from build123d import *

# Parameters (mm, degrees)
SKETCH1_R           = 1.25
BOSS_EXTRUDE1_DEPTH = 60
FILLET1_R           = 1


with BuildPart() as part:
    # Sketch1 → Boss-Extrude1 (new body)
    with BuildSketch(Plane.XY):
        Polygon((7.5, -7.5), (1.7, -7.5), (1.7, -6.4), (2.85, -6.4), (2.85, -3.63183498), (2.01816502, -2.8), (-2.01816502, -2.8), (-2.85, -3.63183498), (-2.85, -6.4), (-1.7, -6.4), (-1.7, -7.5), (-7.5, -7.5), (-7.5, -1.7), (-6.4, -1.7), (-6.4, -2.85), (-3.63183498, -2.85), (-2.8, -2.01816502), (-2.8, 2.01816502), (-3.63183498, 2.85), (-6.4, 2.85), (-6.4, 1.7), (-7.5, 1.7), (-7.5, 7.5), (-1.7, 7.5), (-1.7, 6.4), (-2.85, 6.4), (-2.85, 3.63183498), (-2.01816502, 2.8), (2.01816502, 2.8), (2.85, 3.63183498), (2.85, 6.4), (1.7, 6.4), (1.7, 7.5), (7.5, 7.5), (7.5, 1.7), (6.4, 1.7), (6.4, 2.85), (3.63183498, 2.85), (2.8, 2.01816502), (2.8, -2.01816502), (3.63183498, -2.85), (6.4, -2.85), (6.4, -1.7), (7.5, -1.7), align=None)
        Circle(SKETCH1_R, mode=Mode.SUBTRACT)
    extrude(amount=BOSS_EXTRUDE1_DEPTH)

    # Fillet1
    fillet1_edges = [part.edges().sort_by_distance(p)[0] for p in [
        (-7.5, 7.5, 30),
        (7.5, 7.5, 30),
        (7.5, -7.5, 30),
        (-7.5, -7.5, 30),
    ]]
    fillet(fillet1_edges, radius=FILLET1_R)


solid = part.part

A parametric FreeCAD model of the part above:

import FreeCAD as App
import Part
import Sketcher
from FreeCAD import Vector


def edges_at(feature, points):
    """Names of the edges that pass closest to the given points."""
    edges = feature.Shape.Edges
    near = lambda p: min(range(len(edges)), key=lambda i: edges[i].distToShape(Part.Vertex(*p))[0])
    return sorted({f"Edge{near(p) + 1}" for p in points})

doc = App.newDocument("Part")
params = doc.addObject("Spreadsheet::Sheet", "Params")
for row, (alias, value) in enumerate([
    ("sketch1_diameter", "2.5 mm"),
    ("sketch1_width", "5.8 mm"),
    ("sketch1_width2", "1.1 mm"),
    ("sketch1_width3", "1.15 mm"),
    ("pad1_length", "60 mm"),
    ("fillet_radius", "1 mm"),
], start=1):
    params.set(f"A{row}", alias)
    params.set(f"B{row}", "=" + value)
    params.setAlias(f"B{row}", alias)

body = doc.addObject("PartDesign::Body", "Body")

# Sketch on XY plane
sketch1 = body.newObject("Sketcher::SketchObject", "Sketch")
sketch1.AttachmentSupport = (doc.getObject("XY_Plane"), [""])
sketch1.MapMode = "FlatFace"
sketch1.addGeometry(Part.LineSegment(Vector(1.7, -7.5, 0), Vector(7.5, -7.5, 0)), False)
sketch1.addGeometry(Part.LineSegment(Vector(7.5, -7.5, 0), Vector(7.5, -1.7, 0)), False)
sketch1.addGeometry(Part.LineSegment(Vector(7.5, -1.7, 0), Vector(6.4, -1.7, 0)), False)
sketch1.addGeometry(Part.LineSegment(Vector(6.4, -1.7, 0), Vector(6.4, -2.9, 0)), False)
sketch1.addGeometry(Part.LineSegment(Vector(6.4, -2.9, 0), Vector(3.6, -2.9, 0)), False)
sketch1.addGeometry(Part.LineSegment(Vector(3.6, -2.9, 0), Vector(2.8, -2, 0)), False)
sketch1.addGeometry(Part.LineSegment(Vector(2.8, -2, 0), Vector(2.8, 2, 0)), False)
sketch1.addGeometry(Part.LineSegment(Vector(2.8, 2, 0), Vector(3.6, 2.9, 0)), False)
sketch1.addGeometry(Part.LineSegment(Vector(3.6, 2.9, 0), Vector(6.4, 2.9, 0)), False)
sketch1.addGeometry(Part.LineSegment(Vector(6.4, 2.9, 0), Vector(6.4, 1.7, 0)), False)
sketch1.addGeometry(Part.LineSegment(Vector(6.4, 1.7, 0), Vector(7.5, 1.7, 0)), False)
sketch1.addGeometry(Part.LineSegment(Vector(7.5, 1.7, 0), Vector(7.5, 7.5, 0)), False)
sketch1.addGeometry(Part.LineSegment(Vector(7.5, 7.5, 0), Vector(1.7, 7.5, 0)), False)
sketch1.addGeometry(Part.LineSegment(Vector(1.7, 7.5, 0), Vector(1.7, 6.4, 0)), False)
sketch1.addGeometry(Part.LineSegment(Vector(1.7, 6.4, 0), Vector(2.9, 6.4, 0)), False)
sketch1.addGeometry(Part.LineSegment(Vector(2.9, 6.4, 0), Vector(2.9, 3.6, 0)), False)
sketch1.addGeometry(Part.LineSegment(Vector(2.9, 3.6, 0), Vector(2, 2.8, 0)), False)
sketch1.addGeometry(Part.LineSegment(Vector(2, 2.8, 0), Vector(-2, 2.8, 0)), False)
sketch1.addGeometry(Part.LineSegment(Vector(-2, 2.8, 0), Vector(-2.9, 3.6, 0)), False)
sketch1.addGeometry(Part.LineSegment(Vector(-2.9, 3.6, 0), Vector(-2.9, 6.4, 0)), False)
sketch1.addGeometry(Part.LineSegment(Vector(-2.9, 6.4, 0), Vector(-1.7, 6.4, 0)), False)
sketch1.addGeometry(Part.LineSegment(Vector(-1.7, 6.4, 0), Vector(-1.7, 7.5, 0)), False)
sketch1.addGeometry(Part.LineSegment(Vector(-1.7, 7.5, 0), Vector(-7.5, 7.5, 0)), False)
sketch1.addGeometry(Part.LineSegment(Vector(-7.5, 7.5, 0), Vector(-7.5, 1.7, 0)), False)
sketch1.addGeometry(Part.LineSegment(Vector(-7.5, 1.7, 0), Vector(-6.4, 1.7, 0)), False)
sketch1.addGeometry(Part.LineSegment(Vector(-6.4, 1.7, 0), Vector(-6.4, 2.9, 0)), False)
sketch1.addGeometry(Part.LineSegment(Vector(-6.4, 2.9, 0), Vector(-3.6, 2.9, 0)), False)
sketch1.addGeometry(Part.LineSegment(Vector(-3.6, 2.9, 0), Vector(-2.8, 2, 0)), False)
sketch1.addGeometry(Part.LineSegment(Vector(-2.8, 2, 0), Vector(-2.8, -2, 0)), False)
sketch1.addGeometry(Part.LineSegment(Vector(-2.8, -2, 0), Vector(-3.6, -2.9, 0)), False)
sketch1.addGeometry(Part.LineSegment(Vector(-3.6, -2.9, 0), Vector(-6.4, -2.9, 0)), False)
sketch1.addGeometry(Part.LineSegment(Vector(-6.4, -2.9, 0), Vector(-6.4, -1.7, 0)), False)
sketch1.addGeometry(Part.LineSegment(Vector(-6.4, -1.7, 0), Vector(-7.5, -1.7, 0)), False)
sketch1.addGeometry(Part.LineSegment(Vector(-7.5, -1.7, 0), Vector(-7.5, -7.5, 0)), False)
sketch1.addGeometry(Part.LineSegment(Vector(-7.5, -7.5, 0), Vector(-1.7, -7.5, 0)), False)
sketch1.addGeometry(Part.LineSegment(Vector(-1.7, -7.5, 0), Vector(-1.7, -6.4, 0)), False)
sketch1.addGeometry(Part.LineSegment(Vector(-1.7, -6.4, 0), Vector(-2.9, -6.4, 0)), False)
sketch1.addGeometry(Part.LineSegment(Vector(-2.9, -6.4, 0), Vector(-2.9, -3.6, 0)), False)
sketch1.addGeometry(Part.LineSegment(Vector(-2.9, -3.6, 0), Vector(-2, -2.8, 0)), False)
sketch1.addGeometry(Part.LineSegment(Vector(-2, -2.8, 0), Vector(2, -2.8, 0)), False)
sketch1.addGeometry(Part.LineSegment(Vector(2, -2.8, 0), Vector(2.9, -3.6, 0)), False)
sketch1.addGeometry(Part.LineSegment(Vector(2.9, -3.6, 0), Vector(2.9, -6.4, 0)), False)
sketch1.addGeometry(Part.LineSegment(Vector(2.9, -6.4, 0), Vector(1.7, -6.4, 0)), False)
sketch1.addGeometry(Part.LineSegment(Vector(1.7, -6.4, 0), Vector(1.7, -7.5, 0)), False)
sketch1.addGeometry(Part.Circle(Vector(0, 0, 0), Vector(0, 0, 1), 1.2), False)
sketch1.addConstraint(Sketcher.Constraint("Coincident", 0, 2, 1, 1))
sketch1.addConstraint(Sketcher.Constraint("Coincident", 1, 2, 2, 1))
sketch1.addConstraint(Sketcher.Constraint("Coincident", 2, 2, 3, 1))
sketch1.addConstraint(Sketcher.Constraint("Coincident", 3, 2, 4, 1))
sketch1.addConstraint(Sketcher.Constraint("Coincident", 4, 2, 5, 1))
sketch1.addConstraint(Sketcher.Constraint("Coincident", 5, 2, 6, 1))
sketch1.addConstraint(Sketcher.Constraint("Coincident", 6, 2, 7, 1))
sketch1.addConstraint(Sketcher.Constraint("Coincident", 7, 2, 8, 1))
sketch1.addConstraint(Sketcher.Constraint("Coincident", 8, 2, 9, 1))
sketch1.addConstraint(Sketcher.Constraint("Coincident", 9, 2, 10, 1))
sketch1.addConstraint(Sketcher.Constraint("Coincident", 10, 2, 11, 1))
sketch1.addConstraint(Sketcher.Constraint("Coincident", 11, 2, 12, 1))
sketch1.addConstraint(Sketcher.Constraint("Coincident", 12, 2, 13, 1))
sketch1.addConstraint(Sketcher.Constraint("Coincident", 13, 2, 14, 1))
sketch1.addConstraint(Sketcher.Constraint("Coincident", 14, 2, 15, 1))
sketch1.addConstraint(Sketcher.Constraint("Coincident", 15, 2, 16, 1))
sketch1.addConstraint(Sketcher.Constraint("Coincident", 16, 2, 17, 1))
sketch1.addConstraint(Sketcher.Constraint("Coincident", 17, 2, 18, 1))
sketch1.addConstraint(Sketcher.Constraint("Coincident", 18, 2, 19, 1))
sketch1.addConstraint(Sketcher.Constraint("Coincident", 19, 2, 20, 1))
sketch1.addConstraint(Sketcher.Constraint("Coincident", 20, 2, 21, 1))
sketch1.addConstraint(Sketcher.Constraint("Coincident", 21, 2, 22, 1))
sketch1.addConstraint(Sketcher.Constraint("Coincident", 22, 2, 23, 1))
sketch1.addConstraint(Sketcher.Constraint("Coincident", 23, 2, 24, 1))
sketch1.addConstraint(Sketcher.Constraint("Coincident", 24, 2, 25, 1))
sketch1.addConstraint(Sketcher.Constraint("Coincident", 25, 2, 26, 1))
sketch1.addConstraint(Sketcher.Constraint("Coincident", 26, 2, 27, 1))
sketch1.addConstraint(Sketcher.Constraint("Coincident", 27, 2, 28, 1))
sketch1.addConstraint(Sketcher.Constraint("Coincident", 28, 2, 29, 1))
sketch1.addConstraint(Sketcher.Constraint("Coincident", 29, 2, 30, 1))
sketch1.addConstraint(Sketcher.Constraint("Coincident", 30, 2, 31, 1))
sketch1.addConstraint(Sketcher.Constraint("Coincident", 31, 2, 32, 1))
sketch1.addConstraint(Sketcher.Constraint("Coincident", 32, 2, 33, 1))
sketch1.addConstraint(Sketcher.Constraint("Coincident", 33, 2, 34, 1))
sketch1.addConstraint(Sketcher.Constraint("Coincident", 34, 2, 35, 1))
sketch1.addConstraint(Sketcher.Constraint("Coincident", 35, 2, 36, 1))
sketch1.addConstraint(Sketcher.Constraint("Coincident", 36, 2, 37, 1))
sketch1.addConstraint(Sketcher.Constraint("Coincident", 37, 2, 38, 1))
sketch1.addConstraint(Sketcher.Constraint("Coincident", 38, 2, 39, 1))
sketch1.addConstraint(Sketcher.Constraint("Coincident", 39, 2, 40, 1))
sketch1.addConstraint(Sketcher.Constraint("Coincident", 40, 2, 41, 1))
sketch1.addConstraint(Sketcher.Constraint("Coincident", 41, 2, 42, 1))
sketch1.addConstraint(Sketcher.Constraint("Coincident", 42, 2, 43, 1))
sketch1.addConstraint(Sketcher.Constraint("Coincident", 43, 2, 0, 1))
sketch1.addConstraint(Sketcher.Constraint("Horizontal", 0))
sketch1.addConstraint(Sketcher.Constraint("Vertical", 1))
sketch1.addConstraint(Sketcher.Constraint("Horizontal", 2))
sketch1.addConstraint(Sketcher.Constraint("Vertical", 3))
sketch1.addConstraint(Sketcher.Constraint("Horizontal", 4))
sketch1.addConstraint(Sketcher.Constraint("Vertical", 6))
sketch1.addConstraint(Sketcher.Constraint("Horizontal", 8))
sketch1.addConstraint(Sketcher.Constraint("Vertical", 9))
sketch1.addConstraint(Sketcher.Constraint("Horizontal", 10))
sketch1.addConstraint(Sketcher.Constraint("Vertical", 11))
sketch1.addConstraint(Sketcher.Constraint("Horizontal", 12))
sketch1.addConstraint(Sketcher.Constraint("Vertical", 13))
sketch1.addConstraint(Sketcher.Constraint("Horizontal", 14))
sketch1.addConstraint(Sketcher.Constraint("Vertical", 15))
sketch1.addConstraint(Sketcher.Constraint("Horizontal", 17))
sketch1.addConstraint(Sketcher.Constraint("Vertical", 19))
sketch1.addConstraint(Sketcher.Constraint("Horizontal", 20))
sketch1.addConstraint(Sketcher.Constraint("Vertical", 21))
sketch1.addConstraint(Sketcher.Constraint("Horizontal", 22))
sketch1.addConstraint(Sketcher.Constraint("Vertical", 23))
sketch1.addConstraint(Sketcher.Constraint("Horizontal", 24))
sketch1.addConstraint(Sketcher.Constraint("Vertical", 25))
sketch1.addConstraint(Sketcher.Constraint("Horizontal", 26))
sketch1.addConstraint(Sketcher.Constraint("Vertical", 28))
sketch1.addConstraint(Sketcher.Constraint("Horizontal", 30))
sketch1.addConstraint(Sketcher.Constraint("Vertical", 31))
sketch1.addConstraint(Sketcher.Constraint("Horizontal", 32))
sketch1.addConstraint(Sketcher.Constraint("Vertical", 33))
sketch1.addConstraint(Sketcher.Constraint("Horizontal", 34))
sketch1.addConstraint(Sketcher.Constraint("Vertical", 35))
sketch1.addConstraint(Sketcher.Constraint("Horizontal", 36))
sketch1.addConstraint(Sketcher.Constraint("Vertical", 37))
sketch1.addConstraint(Sketcher.Constraint("Horizontal", 39))
sketch1.addConstraint(Sketcher.Constraint("Vertical", 41))
sketch1.addConstraint(Sketcher.Constraint("Horizontal", 42))
sketch1.addConstraint(Sketcher.Constraint("Vertical", 43))
sketch1.addConstraint(Sketcher.Constraint("Coincident", 44, 3, -1, 1))
sketch1.addConstraint(Sketcher.Constraint("Symmetric", 0, 2, 22, 2, -1, 1))
sketch1.addConstraint(Sketcher.Constraint("Symmetric", 2, 2, 24, 2, -1, 1))
sketch1.addConstraint(Sketcher.Constraint("Symmetric", 4, 2, 26, 2, -1, 1))
sketch1.addConstraint(Sketcher.Constraint("Symmetric", 5, 2, 27, 2, -1, 1))
sketch1.addConstraint(Sketcher.Constraint("Symmetric", 7, 2, 29, 2, -1, 1))
sketch1.addConstraint(Sketcher.Constraint("Symmetric", 9, 2, 31, 2, -1, 1))
sketch1.addConstraint(Sketcher.Constraint("Symmetric", 11, 2, 33, 2, -1, 1))
sketch1.addConstraint(Sketcher.Constraint("Symmetric", 13, 2, 35, 2, -1, 1))
sketch1.addConstraint(Sketcher.Constraint("Symmetric", 15, 2, 37, 2, -1, 1))
sketch1.addConstraint(Sketcher.Constraint("Symmetric", 16, 2, 38, 2, -1, 1))
sketch1.addConstraint(Sketcher.Constraint("Symmetric", 18, 2, 40, 2, -1, 1))
sketch1.addConstraint(Sketcher.Constraint("Symmetric", 20, 2, 42, 2, -1, 1))
sketch1.addConstraint(Sketcher.Constraint("Symmetric", 15, 2, 18, 2, -2))
sketch1.addConstraint(Sketcher.Constraint("Symmetric", 13, 2, 20, 2, -2))
sketch1.addConstraint(Sketcher.Constraint("Symmetric", 11, 2, 22, 2, -2))
sketch1.addConstraint(Sketcher.Constraint("Symmetric", 9, 2, 24, 2, -2))
sketch1.addConstraint(Sketcher.Constraint("Symmetric", 7, 2, 26, 2, -2))
sketch1.addConstraint(Sketcher.Constraint("Perpendicular", 5, 7))
sketch1.addConstraint(Sketcher.Constraint("Parallel", 7, 16))
sketch1.addConstraint(Sketcher.Constraint("Perpendicular", 16, 18))
sketch1.addConstraint(Sketcher.Constraint("Perpendicular", 27, 29))
sketch1.addConstraint(Sketcher.Constraint("Perpendicular", 38, 40))
sketch1.addConstraint(Sketcher.Constraint("Horizontal", 6, 2, 27, 2))
sketch1.addConstraint(Sketcher.Constraint("Equal", 34, 1))
sketch1.addConstraint(Sketcher.Constraint("Equal", 42, 3))
sketch1.addConstraint(Sketcher.Constraint("Equal", 39, 6))
sketch1.addConstraint(Sketcher.Constraint("Equal", 32, 13))
sketch1.addConstraint(Sketcher.Constraint("Equal", 30, 15))
sketch1.addConstraint(Sketcher.Constraint("Equal", 7, 16))
sketch1.addConstraint(Sketcher.Constraint("Diameter", 44, 2.5))
sketch1.addConstraint(Sketcher.Constraint("DistanceX", 0, 1, 0, 2, 5.8))
sketch1.addConstraint(Sketcher.Constraint("DistanceX", 2, 2, 2, 1, 1.1))
sketch1.addConstraint(Sketcher.Constraint("DistanceX", 14, 1, 14, 2, 1.15))
sketch1.addConstraint(Sketcher.Constraint("DistanceX", -1, 1, 0, 2, 7.5))
sketch1.addConstraint(Sketcher.Constraint("DistanceX", -1, 1, 5, 2, 2.8))
sketch1.addConstraint(Sketcher.Constraint("DistanceX", 17, 2, 17, 1, 4.03633))
sketch1.setExpression("Constraints[110]", "Params.sketch1_diameter")
sketch1.setExpression("Constraints[111]", "Params.sketch1_width")
sketch1.setExpression("Constraints[112]", "Params.sketch1_width2")
sketch1.setExpression("Constraints[113]", "Params.sketch1_width3")
pad1 = body.newObject("PartDesign::Pad", "Pad")
pad1.Profile = sketch1
pad1.setExpression("Length", "Params.pad1_length")
doc.recompute()

fillet = body.newObject("PartDesign::Fillet", "Fillet")
fillet.Base = (pad1, edges_at(pad1, [
    (-7.5, 7.5, 30),
    (7.5, 7.5, 30),
    (7.5, -7.5, 30),
    (-7.5, -7.5, 30),
]))
fillet.setExpression("Radius", "Params.fillet_radius")

doc.recompute()
